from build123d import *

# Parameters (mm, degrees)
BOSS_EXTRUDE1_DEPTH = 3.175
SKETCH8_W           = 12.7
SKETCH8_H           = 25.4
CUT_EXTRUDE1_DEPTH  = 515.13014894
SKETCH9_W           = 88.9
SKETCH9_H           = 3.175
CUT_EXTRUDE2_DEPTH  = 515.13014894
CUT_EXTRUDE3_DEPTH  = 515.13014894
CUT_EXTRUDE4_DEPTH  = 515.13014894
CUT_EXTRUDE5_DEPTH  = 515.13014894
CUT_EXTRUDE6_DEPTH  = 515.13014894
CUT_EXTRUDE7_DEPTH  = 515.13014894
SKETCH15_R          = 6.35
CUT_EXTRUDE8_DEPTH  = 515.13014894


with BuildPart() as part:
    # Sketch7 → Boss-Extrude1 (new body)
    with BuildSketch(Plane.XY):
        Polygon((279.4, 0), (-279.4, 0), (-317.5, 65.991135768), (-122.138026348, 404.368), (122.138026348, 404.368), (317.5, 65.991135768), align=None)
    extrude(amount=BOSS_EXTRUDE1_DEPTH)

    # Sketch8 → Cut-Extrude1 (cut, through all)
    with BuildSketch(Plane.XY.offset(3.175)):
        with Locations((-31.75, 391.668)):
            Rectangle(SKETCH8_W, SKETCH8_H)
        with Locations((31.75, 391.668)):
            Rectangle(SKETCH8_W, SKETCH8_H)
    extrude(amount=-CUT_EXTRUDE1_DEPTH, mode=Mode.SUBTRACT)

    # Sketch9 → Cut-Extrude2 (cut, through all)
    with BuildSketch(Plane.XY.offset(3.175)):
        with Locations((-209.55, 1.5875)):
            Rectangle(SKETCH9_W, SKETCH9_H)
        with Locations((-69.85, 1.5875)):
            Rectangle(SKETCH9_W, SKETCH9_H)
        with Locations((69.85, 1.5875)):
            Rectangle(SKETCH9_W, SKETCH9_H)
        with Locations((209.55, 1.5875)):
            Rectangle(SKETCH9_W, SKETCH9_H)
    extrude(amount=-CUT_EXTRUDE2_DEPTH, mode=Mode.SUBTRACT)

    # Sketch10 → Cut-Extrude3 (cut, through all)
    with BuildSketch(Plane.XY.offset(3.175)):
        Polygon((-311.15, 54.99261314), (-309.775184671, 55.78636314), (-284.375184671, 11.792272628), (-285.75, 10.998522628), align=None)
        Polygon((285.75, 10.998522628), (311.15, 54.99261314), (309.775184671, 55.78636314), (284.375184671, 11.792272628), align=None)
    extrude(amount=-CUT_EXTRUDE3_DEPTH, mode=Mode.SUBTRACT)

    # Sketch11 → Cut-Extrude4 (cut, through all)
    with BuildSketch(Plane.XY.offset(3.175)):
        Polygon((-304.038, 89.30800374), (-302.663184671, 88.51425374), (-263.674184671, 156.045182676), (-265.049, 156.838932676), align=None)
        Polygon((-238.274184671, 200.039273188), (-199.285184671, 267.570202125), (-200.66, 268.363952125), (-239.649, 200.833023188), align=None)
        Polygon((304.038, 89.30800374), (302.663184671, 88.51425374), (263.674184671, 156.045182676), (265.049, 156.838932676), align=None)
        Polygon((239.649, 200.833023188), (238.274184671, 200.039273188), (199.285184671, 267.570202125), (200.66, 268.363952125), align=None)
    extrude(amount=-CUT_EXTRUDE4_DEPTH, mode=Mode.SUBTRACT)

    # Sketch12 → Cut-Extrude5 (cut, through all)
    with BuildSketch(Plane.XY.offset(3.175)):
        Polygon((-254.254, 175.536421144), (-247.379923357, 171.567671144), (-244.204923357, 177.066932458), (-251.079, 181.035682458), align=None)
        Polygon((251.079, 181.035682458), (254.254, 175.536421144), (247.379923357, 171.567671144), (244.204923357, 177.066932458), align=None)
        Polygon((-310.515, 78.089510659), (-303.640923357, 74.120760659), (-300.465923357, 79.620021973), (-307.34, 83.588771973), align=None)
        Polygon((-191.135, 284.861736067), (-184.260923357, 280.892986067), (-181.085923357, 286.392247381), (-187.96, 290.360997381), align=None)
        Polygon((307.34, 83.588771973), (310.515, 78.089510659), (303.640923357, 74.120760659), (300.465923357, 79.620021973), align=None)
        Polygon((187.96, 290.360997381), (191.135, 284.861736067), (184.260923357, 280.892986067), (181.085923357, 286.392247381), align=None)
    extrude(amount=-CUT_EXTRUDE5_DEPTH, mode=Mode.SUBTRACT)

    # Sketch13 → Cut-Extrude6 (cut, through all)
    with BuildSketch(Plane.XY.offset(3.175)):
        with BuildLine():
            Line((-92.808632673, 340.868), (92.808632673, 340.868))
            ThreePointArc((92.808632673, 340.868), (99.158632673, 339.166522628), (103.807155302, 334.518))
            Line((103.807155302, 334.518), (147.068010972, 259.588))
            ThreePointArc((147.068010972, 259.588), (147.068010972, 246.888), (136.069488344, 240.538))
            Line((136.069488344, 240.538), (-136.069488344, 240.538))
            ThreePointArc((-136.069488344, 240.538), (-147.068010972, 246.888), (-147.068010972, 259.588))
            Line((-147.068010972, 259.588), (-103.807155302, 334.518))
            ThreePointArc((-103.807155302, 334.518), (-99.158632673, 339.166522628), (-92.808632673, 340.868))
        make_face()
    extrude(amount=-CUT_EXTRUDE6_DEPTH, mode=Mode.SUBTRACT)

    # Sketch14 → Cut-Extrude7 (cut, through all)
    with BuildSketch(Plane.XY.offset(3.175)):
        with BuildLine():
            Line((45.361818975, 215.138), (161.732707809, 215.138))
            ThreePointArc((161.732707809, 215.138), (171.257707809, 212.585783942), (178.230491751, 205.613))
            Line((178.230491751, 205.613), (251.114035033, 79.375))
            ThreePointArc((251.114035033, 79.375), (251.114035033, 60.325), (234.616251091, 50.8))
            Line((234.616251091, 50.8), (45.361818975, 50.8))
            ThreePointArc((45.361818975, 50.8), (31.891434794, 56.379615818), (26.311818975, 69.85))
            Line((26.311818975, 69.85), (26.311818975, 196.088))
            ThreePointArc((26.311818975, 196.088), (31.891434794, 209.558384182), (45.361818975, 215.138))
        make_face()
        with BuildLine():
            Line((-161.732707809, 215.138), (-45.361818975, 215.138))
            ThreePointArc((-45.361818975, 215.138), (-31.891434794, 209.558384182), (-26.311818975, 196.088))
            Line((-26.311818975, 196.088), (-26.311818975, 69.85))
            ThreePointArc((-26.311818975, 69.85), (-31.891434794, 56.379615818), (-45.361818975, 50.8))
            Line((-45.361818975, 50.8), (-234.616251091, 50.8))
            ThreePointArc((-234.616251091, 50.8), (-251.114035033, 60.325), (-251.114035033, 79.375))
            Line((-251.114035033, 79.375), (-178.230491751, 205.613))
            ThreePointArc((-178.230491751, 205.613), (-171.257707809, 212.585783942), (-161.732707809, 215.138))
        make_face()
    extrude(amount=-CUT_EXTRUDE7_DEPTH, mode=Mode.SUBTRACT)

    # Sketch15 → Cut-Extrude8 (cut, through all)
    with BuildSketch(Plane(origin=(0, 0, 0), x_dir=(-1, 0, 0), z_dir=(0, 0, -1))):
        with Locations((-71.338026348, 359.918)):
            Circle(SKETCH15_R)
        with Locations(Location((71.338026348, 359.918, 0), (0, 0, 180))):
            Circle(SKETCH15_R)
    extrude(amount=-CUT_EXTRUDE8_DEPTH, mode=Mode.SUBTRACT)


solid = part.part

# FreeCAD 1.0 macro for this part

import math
import FreeCAD as App
import Part
import Sketcher
from FreeCAD import Vector
Q = App.Units.Quantity

doc = App.newDocument("Part")
body = doc.addObject("PartDesign::Body", "Body")

# Sketch on XY plane
sketch1 = body.newObject("Sketcher::SketchObject", "Sketch")
sketch1.AttachmentSupport = (doc.getObject("XY_Plane"), [""])
sketch1.MapMode = "FlatFace"
sketch1.addGeometry([
    Part.LineSegment(Vector(-279, 0, 0), Vector(279, 0, 0)),  # 0
    Part.LineSegment(Vector(279, 0, 0), Vector(318, 66, 0)),  # 1
    Part.LineSegment(Vector(318, 66, 0), Vector(122, 404, 0)),  # 2
    Part.LineSegment(Vector(122, 404, 0), Vector(-122, 404, 0)),  # 3
    Part.LineSegment(Vector(-122, 404, 0), Vector(-318, 66, 0)),  # 4
    Part.LineSegment(Vector(-318, 66, 0), Vector(-279, 0, 0)),  # 5
], False)
sketch1.addConstraint([
    Sketcher.Constraint("Coincident", 0, 2, 1, 1),
    Sketcher.Constraint("Coincident", 1, 2, 2, 1),
    Sketcher.Constraint("Coincident", 2, 2, 3, 1),
    Sketcher.Constraint("Coincident", 3, 2, 4, 1),
    Sketcher.Constraint("Coincident", 4, 2, 5, 1),
    Sketcher.Constraint("Coincident", 5, 2, 0, 1),
    Sketcher.Constraint("Horizontal", 0),
    Sketcher.Constraint("Horizontal", 3),
    Sketcher.Constraint("Symmetric", 0, 2, 5, 2, -1, 1),
    Sketcher.Constraint("Symmetric", 1, 2, 4, 2, -2),
    Sketcher.Constraint("Parallel", 1, 4),
    Sketcher.Constraint("Parallel", 2, 5),
    Sketcher.Constraint("DistanceX", 0, 1, 0, 2, Q("22 in")),
    Sketcher.Constraint("Distance", 1, Q("3 in")),
    Sketcher.Constraint("Angle", 1, Q("60 deg")),
    Sketcher.Constraint("DistanceY", -1, 1, 2, 2, Q("15.92 in")),
])
pad1 = body.newObject("PartDesign::Pad", "Pad")
pad1.Profile = sketch1
pad1.Length = Q("0.125 in")

# Sketch on XY plane
sketch2 = body.newObject("Sketcher::SketchObject", "Sketch001")
sketch2.AttachmentSupport = (doc.getObject("XY_Plane"), [""])
sketch2.MapMode = "FlatFace"
sketch2.AttachmentOffset = App.Placement(Vector(0, 0, 0.125 * 25.4), App.Rotation())
sketch2.addGeometry([
    Part.LineSegment(Vector(-38, 404, 0), Vector(-38, 379, 0)),  # 0
    Part.LineSegment(Vector(-38, 379, 0), Vector(-25, 379, 0)),  # 1
    Part.LineSegment(Vector(-25, 379, 0), Vector(-25, 404, 0)),  # 2
    Part.LineSegment(Vector(-25, 404, 0), Vector(-38, 404, 0)),  # 3
    Part.LineSegment(Vector(25, 404, 0), Vector(25, 379, 0)),  # 4
    Part.LineSegment(Vector(25, 379, 0), Vector(38, 379, 0)),  # 5
    Part.LineSegment(Vector(38, 379, 0), Vector(38, 404, 0)),  # 6
    Part.LineSegment(Vector(38, 404, 0), Vector(25, 404, 0)),  # 7
], False)
sketch2.addConstraint([
    Sketcher.Constraint("Coincident", 0, 2, 1, 1),
    Sketcher.Constraint("Coincident", 1, 2, 2, 1),
    Sketcher.Constraint("Coincident", 2, 2, 3, 1),
    Sketcher.Constraint("Coincident", 3, 2, 0, 1),
    Sketcher.Constraint("Coincident", 4, 2, 5, 1),
    Sketcher.Constraint("Coincident", 5, 2, 6, 1),
    Sketcher.Constraint("Coincident", 6, 2, 7, 1),
    Sketcher.Constraint("Coincident", 7, 2, 4, 1),
    Sketcher.Constraint("Vertical", 0),
    Sketcher.Constraint("Horizontal", 1),
    Sketcher.Constraint("Vertical", 2),
    Sketcher.Constraint("Horizontal", 3),
    Sketcher.Constraint("Vertical", 4),
    Sketcher.Constraint("Horizontal", 5),
    Sketcher.Constraint("Vertical", 6),
    Sketcher.Constraint("Horizontal", 7),
    Sketcher.Constraint("Symmetric", 1, 2, 4, 2, -2),
    Sketcher.Constraint("Symmetric", 3, 2, 6, 2, -2),
    Sketcher.Constraint("DistanceY", 0, 2, 0, 1, Q("1 in")),
    Sketcher.Constraint("DistanceX", 1, 1, 1, 2, Q("0.5 in")),
    Sketcher.Constraint("DistanceX", 1, 2, -1, 1, Q("1 in")),
    Sketcher.Constraint("DistanceY", -1, 1, 0, 2, Q("14.92 in")),
])
pocket1 = body.newObject("PartDesign::Pocket", "Pocket")
pocket1.Profile = sketch2
pocket1.Type = "ThroughAll"

# Sketch on XY plane
sketch3 = body.newObject("Sketcher::SketchObject", "Sketch002")
sketch3.AttachmentSupport = (doc.getObject("XY_Plane"), [""])
sketch3.MapMode = "FlatFace"
sketch3.AttachmentOffset = App.Placement(Vector(0, 0, 0.125 * 25.4), App.Rotation())
sketch3.addGeometry([
    Part.LineSegment(Vector(-254, 3.2, 0), Vector(-254, 0, 0)),  # 0
    Part.LineSegment(Vector(-254, 0, 0), Vector(-165.1, 0, 0)),  # 1
    Part.LineSegment(Vector(-165.1, 0, 0), Vector(-165.1, 3.2, 0)),  # 2
    Part.LineSegment(Vector(-165.1, 3.2, 0), Vector(-254, 3.2, 0)),  # 3
    Part.LineSegment(Vector(-114.3, 3.2, 0), Vector(-114.3, 0, 0)),  # 4
    Part.LineSegment(Vector(-114.3, 0, 0), Vector(-25.4, 0, 0)),  # 5
    Part.LineSegment(Vector(-25.4, 0, 0), Vector(-25.4, 3.2, 0)),  # 6
    Part.LineSegment(Vector(-25.4, 3.2, 0), Vector(-114.3, 3.2, 0)),  # 7
    Part.LineSegment(Vector(25.4, 3.2, 0), Vector(25.4, 0, 0)),  # 8
    Part.LineSegment(Vector(25.4, 0, 0), Vector(114.3, 0, 0)),  # 9
    Part.LineSegment(Vector(114.3, 0, 0), Vector(114.3, 3.2, 0)),  # 10
    Part.LineSegment(Vector(114.3, 3.2, 0), Vector(25.4, 3.2, 0)),  # 11
    Part.LineSegment(Vector(165.1, 3.2, 0), Vector(165.1, 0, 0)),  # 12
    Part.LineSegment(Vector(165.1, 0, 0), Vector(254, 0, 0)),  # 13
    Part.LineSegment(Vector(254, 0, 0), Vector(254, 3.2, 0)),  # 14
    Part.LineSegment(Vector(254, 3.2, 0), Vector(165.1, 3.2, 0)),  # 15
], False)
sketch3.addConstraint([
    Sketcher.Constraint("Coincident", 0, 2, 1, 1),
    Sketcher.Constraint("Coincident", 1, 2, 2, 1),
    Sketcher.Constraint("Coincident", 2, 2, 3, 1),
    Sketcher.Constraint("Coincident", 3, 2, 0, 1),
    Sketcher.Constraint("Coincident", 4, 2, 5, 1),
    Sketcher.Constraint("Coincident", 5, 2, 6, 1),
    Sketcher.Constraint("Coincident", 6, 2, 7, 1),
    Sketcher.Constraint("Coincident", 7, 2, 4, 1),
    Sketcher.Constraint("Coincident", 8, 2, 9, 1),
    Sketcher.Constraint("Coincident", 9, 2, 10, 1),
    Sketcher.Constraint("Coincident", 10, 2, 11, 1),
    Sketcher.Constraint("Coincident", 11, 2, 8, 1),
    Sketcher.Constraint("Coincident", 12, 2, 13, 1),
    Sketcher.Constraint("Coincident", 13, 2, 14, 1),
    Sketcher.Constraint("Coincident", 14, 2, 15, 1),
    Sketcher.Constraint("Coincident", 15, 2, 12, 1),
    Sketcher.Constraint("Vertical", 0),
    Sketcher.Constraint("Horizontal", 1),
    Sketcher.Constraint("Vertical", 2),
    Sketcher.Constraint("Horizontal", 3),
    Sketcher.Constraint("Vertical", 4),
    Sketcher.Constraint("Horizontal", 5),
    Sketcher.Constraint("Vertical", 6),
    Sketcher.Constraint("Horizontal", 7),
    Sketcher.Constraint("Vertical", 8),
    Sketcher.Constraint("Horizontal", 9),
    Sketcher.Constraint("Vertical", 10),
    Sketcher.Constraint("Horizontal", 11),
    Sketcher.Constraint("Vertical", 12),
    Sketcher.Constraint("Horizontal", 13),
    Sketcher.Constraint("Vertical", 14),
    Sketcher.Constraint("Horizontal", 15),
    Sketcher.Constraint("Symmetric", 5, 2, 8, 2, -1, 1),
    Sketcher.Constraint("Symmetric", 1, 2, 12, 2, -1, 1),
    Sketcher.Constraint("Symmetric", 4, 2, 9, 2, -2),
    Sketcher.Constraint("Symmetric", 0, 2, 13, 2, -2),
    Sketcher.Constraint("Horizontal", 3, 2, 6, 2),
    Sketcher.Constraint("Horizontal", 7, 2, 10, 2),
    Sketcher.Constraint("Horizontal", 11, 2, 14, 2),
    Sketcher.Constraint("Equal", 3, 5),
    Sketcher.Constraint("DistanceX", 1, 1, 1, 2, Q("3.5 in")),
    Sketcher.Constraint("DistanceX", 0, 2, -1, 1, Q("10 in")),
    Sketcher.Constraint("DistanceX", 5, 2, -1, 1, Q("1 in")),
    Sketcher.Constraint("DistanceY", 0, 2, 0, 1, Q("0.125 in")),
])
pocket2 = body.newObject("PartDesign::Pocket", "Pocket001")
pocket2.Profile = sketch3
pocket2.Type = "ThroughAll"

# Sketch on XY plane
sketch4 = body.newObject("Sketcher::SketchObject", "Sketch003")
sketch4.AttachmentSupport = (doc.getObject("XY_Plane"), [""])
sketch4.MapMode = "FlatFace"
sketch4.AttachmentOffset = App.Placement(Vector(0, 0, 0.125 * 25.4), App.Rotation())
sketch4.addGeometry([
    Part.LineSegment(Vector(-309.8, 55.8, 0), Vector(-311.1, 55, 0)),  # 0
    Part.LineSegment(Vector(-311.1, 55, 0), Vector(-285.8, 11, 0)),  # 1
    Part.LineSegment(Vector(-285.8, 11, 0), Vector(-284.4, 11.8, 0)),  # 2
    Part.LineSegment(Vector(-284.4, 11.8, 0), Vector(-309.8, 55.8, 0)),  # 3
    Part.LineSegment(Vector(285.8, 11, 0), Vector(311.1, 55, 0)),  # 4
    Part.LineSegment(Vector(311.1, 55, 0), Vector(309.8, 55.8, 0)),  # 5
    Part.LineSegment(Vector(309.8, 55.8, 0), Vector(284.4, 11.8, 0)),  # 6
    Part.LineSegment(Vector(284.4, 11.8, 0), Vector(285.8, 11, 0)),  # 7
], False)
sketch4.addConstraint([
    Sketcher.Constraint("Coincident", 0, 2, 1, 1),
    Sketcher.Constraint("Coincident", 1, 2, 2, 1),
    Sketcher.Constraint("Coincident", 2, 2, 3, 1),
    Sketcher.Constraint("Coincident", 3, 2, 0, 1),
    Sketcher.Constraint("Coincident", 4, 2, 5, 1),
    Sketcher.Constraint("Coincident", 5, 2, 6, 1),
    Sketcher.Constraint("Coincident", 6, 2, 7, 1),
    Sketcher.Constraint("Coincident", 7, 2, 4, 1),
    Sketcher.Constraint("Symmetric", 0, 2, 4, 2, -2),
    Sketcher.Constraint("Symmetric", 3, 2, 5, 2, -2),
    Sketcher.Constraint("Symmetric", 2, 2, 6, 2, -2),
    Sketcher.Constraint("Symmetric", 1, 2, 7, 2, -2),
    Sketcher.Constraint("Perpendicular", 0, 1),
    Sketcher.Constraint("Perpendicular", 1, 2),
    Sketcher.Constraint("Perpendicular", 2, 3),
    Sketcher.Constraint("Distance", 1, Q("2 in")),
    Sketcher.Constraint("Angle", 0, Q("-150 deg")),
    Sketcher.Constraint("DistanceX", 1, 2, 4, 2, Q("23.5 in")),
    Sketcher.Constraint("Distance", 0, Q("0.0625 in")),
    Sketcher.Constraint("DistanceY", -1, 1, 0, 2, 54.992613),
])
pocket3 = body.newObject("PartDesign::Pocket", "Pocket002")
pocket3.Profile = sketch4
pocket3.Type = "ThroughAll"

# Sketch on XY plane
sketch5 = body.newObject("Sketcher::SketchObject", "Sketch004")
sketch5.AttachmentSupport = (doc.getObject("XY_Plane"), [""])
sketch5.MapMode = "FlatFace"
sketch5.AttachmentOffset = App.Placement(Vector(0, 0, 0.125 * 25.4), App.Rotation())
sketch5.addGeometry([
    Part.LineSegment(Vector(-304, 89.3, 0), Vector(-302.7, 88.5, 0)),  # 0
    Part.LineSegment(Vector(-302.7, 88.5, 0), Vector(-263.7, 156, 0)),  # 1
    Part.LineSegment(Vector(-263.7, 156, 0), Vector(-265, 156.8, 0)),  # 2
    Part.LineSegment(Vector(-265, 156.8, 0), Vector(-304, 89.3, 0)),  # 3
    Part.LineSegment(Vector(-238.3, 200, 0), Vector(-199.3, 267.6, 0)),  # 4
    Part.LineSegment(Vector(-199.3, 267.6, 0), Vector(-200.7, 268.4, 0)),  # 5
    Part.LineSegment(Vector(-200.7, 268.4, 0), Vector(-239.6, 200.8, 0)),  # 6
    Part.LineSegment(Vector(-239.6, 200.8, 0), Vector(-238.3, 200, 0)),  # 7
    Part.LineSegment(Vector(302.7, 88.5, 0), Vector(304, 89.3, 0)),  # 8
    Part.LineSegment(Vector(304, 89.3, 0), Vector(265, 156.8, 0)),  # 9
    Part.LineSegment(Vector(265, 156.8, 0), Vector(263.7, 156, 0)),  # 10
    Part.LineSegment(Vector(263.7, 156, 0), Vector(302.7, 88.5, 0)),  # 11
    Part.LineSegment(Vector(238.3, 200, 0), Vector(239.6, 200.8, 0)),  # 12
    Part.LineSegment(Vector(239.6, 200.8, 0), Vector(200.7, 268.4, 0)),  # 13
    Part.LineSegment(Vector(200.7, 268.4, 0), Vector(199.3, 267.6, 0)),  # 14
    Part.LineSegment(Vector(199.3, 267.6, 0), Vector(238.3, 200, 0)),  # 15
], False)
sketch5.addConstraint([
    Sketcher.Constraint("Coincident", 0, 2, 1, 1),
    Sketcher.Constraint("Coincident", 1, 2, 2, 1),
    Sketcher.Constraint("Coincident", 2, 2, 3, 1),
    Sketcher.Constraint("Coincident", 3, 2, 0, 1),
    Sketcher.Constraint("Coincident", 4, 2, 5, 1),
    Sketcher.Constraint("Coincident", 5, 2, 6, 1),
    Sketcher.Constraint("Coincident", 6, 2, 7, 1),
    Sketcher.Constraint("Coincident", 7, 2, 4, 1),
    Sketcher.Constraint("Coincident", 8, 2, 9, 1),
    Sketcher.Constraint("Coincident", 9, 2, 10, 1),
    Sketcher.Constraint("Coincident", 10, 2, 11, 1),
    Sketcher.Constraint("Coincident", 11, 2, 8, 1),
    Sketcher.Constraint("Coincident", 12, 2, 13, 1),
    Sketcher.Constraint("Coincident", 13, 2, 14, 1),
    Sketcher.Constraint("Coincident", 14, 2, 15, 1),
    Sketcher.Constraint("Coincident", 15, 2, 12, 1),
    Sketcher.Constraint("Symmetric", 3, 2, 8, 2, -2),
    Sketcher.Constraint("Symmetric", 2, 2, 9, 2, -2),
    Sketcher.Constraint("Symmetric", 1, 2, 10, 2, -2),
    Sketcher.Constraint("Symmetric", 0, 2, 11, 2, -2),
    Sketcher.Constraint("Symmetric", 6, 2, 12, 2, -2),
    Sketcher.Constraint("Symmetric", 5, 2, 13, 2, -2),
    Sketcher.Constraint("Symmetric", 4, 2, 14, 2, -2),
    Sketcher.Constraint("Symmetric", 7, 2, 15, 2, -2),
    Sketcher.Constraint("Perpendicular", 0, 1),
    Sketcher.Constraint("Perpendicular", 1, 2),
    Sketcher.Constraint("Perpendicular", 2, 3),
    Sketcher.Constraint("Parallel", 3, 4),
    Sketcher.Constraint("Perpendicular", 4, 5),
    Sketcher.Constraint("Perpendicular", 5, 6),
    Sketcher.Constraint("Perpendicular", 6, 7),
    Sketcher.Constraint("Equal", 3, 4),
    Sketcher.Constraint("Equal", 2, 5),
    Sketcher.Constraint("Angle", 0, Q("-30 deg")),
    Sketcher.Constraint("DistanceX", 2, 2, 6, 2, Q("1 in")),
    Sketcher.Constraint("DistanceX", 5, 2, -1, 1, Q("7.9 in")),
    Sketcher.Constraint("Distance", 1, Q("3.07 in")),
    Sketcher.Constraint("Distance", 0, Q("0.0625 in")),
    Sketcher.Constraint("DistanceY", 3, 2, 4, 2, 178.262198),
    Sketcher.Constraint("DistanceY", -1, 1, 0, 2, 88.514254),
])
pocket4 = body.newObject("PartDesign::Pocket", "Pocket003")
pocket4.Profile = sketch5
pocket4.Type = "ThroughAll"

# Sketch on XY plane
sketch6 = body.newObject("Sketcher::SketchObject", "Sketch005")
sketch6.AttachmentSupport = (doc.getObject("XY_Plane"), [""])
sketch6.MapMode = "FlatFace"
sketch6.AttachmentOffset = App.Placement(Vector(0, 0, 0.125 * 25.4), App.Rotation())
sketch6.addGeometry([
    Part.LineSegment(Vector(-254, 176, 0), Vector(-247, 172, 0)),  # 0
    Part.LineSegment(Vector(-247, 172, 0), Vector(-244, 177, 0)),  # 1
    Part.LineSegment(Vector(-244, 177, 0), Vector(-251, 181, 0)),  # 2
    Part.LineSegment(Vector(-251, 181, 0), Vector(-254, 176, 0)),  # 3
    Part.LineSegment(Vector(254, 176, 0), Vector(251, 181, 0)),  # 4
    Part.LineSegment(Vector(251, 181, 0), Vector(244, 177, 0)),  # 5
    Part.LineSegment(Vector(244, 177, 0), Vector(247, 172, 0)),  # 6
    Part.LineSegment(Vector(247, 172, 0), Vector(254, 176, 0)),  # 7
    Part.LineSegment(Vector(-311, 78, 0), Vector(-304, 74, 0)),  # 8
    Part.LineSegment(Vector(-304, 74, 0), Vector(-300, 80, 0)),  # 9
    Part.LineSegment(Vector(-300, 80, 0), Vector(-307, 84, 0)),  # 10
    Part.LineSegment(Vector(-307, 84, 0), Vector(-311, 78, 0)),  # 11
    Part.LineSegment(Vector(-191, 285, 0), Vector(-184, 281, 0)),  # 12
    Part.LineSegment(Vector(-184, 281, 0), Vector(-181, 286, 0)),  # 13
    Part.LineSegment(Vector(-181, 286, 0), Vector(-188, 290, 0)),  # 14
    Part.LineSegment(Vector(-188, 290, 0), Vector(-191, 285, 0)),  # 15
    Part.LineSegment(Vector(311, 78, 0), Vector(307, 84, 0)),  # 16
    Part.LineSegment(Vector(307, 84, 0), Vector(300, 80, 0)),  # 17
    Part.LineSegment(Vector(300, 80, 0), Vector(304, 74, 0)),  # 18
    Part.LineSegment(Vector(304, 74, 0), Vector(311, 78, 0)),  # 19
    Part.LineSegment(Vector(191, 285, 0), Vector(188, 290, 0)),  # 20
    Part.LineSegment(Vector(188, 290, 0), Vector(181, 286, 0)),  # 21
    Part.LineSegment(Vector(181, 286, 0), Vector(184, 281, 0)),  # 22
    Part.LineSegment(Vector(184, 281, 0), Vector(191, 285, 0)),  # 23
], False)
sketch6.addConstraint([
    Sketcher.Constraint("Coincident", 0, 2, 1, 1),
    Sketcher.Constraint("Coincident", 1, 2, 2, 1),
    Sketcher.Constraint("Coincident", 2, 2, 3, 1),
    Sketcher.Constraint("Coincident", 3, 2, 0, 1),
    Sketcher.Constraint("Coincident", 4, 2, 5, 1),
    Sketcher.Constraint("Coincident", 5, 2, 6, 1),
    Sketcher.Constraint("Coincident", 6, 2, 7, 1),
    Sketcher.Constraint("Coincident", 7, 2, 4, 1),
    Sketcher.Constraint("Coincident", 8, 2, 9, 1),
    Sketcher.Constraint("Coincident", 9, 2, 10, 1),
    Sketcher.Constraint("Coincident", 10, 2, 11, 1),
    Sketcher.Constraint("Coincident", 11, 2, 8, 1),
    Sketcher.Constraint("Coincident", 12, 2, 13, 1),
    Sketcher.Constraint("Coincident", 13, 2, 14, 1),
    Sketcher.Constraint("Coincident", 14, 2, 15, 1),
    Sketcher.Constraint("Coincident", 15, 2, 12, 1),
    Sketcher.Constraint("Coincident", 16, 2, 17, 1),
    Sketcher.Constraint("Coincident", 17, 2, 18, 1),
    Sketcher.Constraint("Coincident", 18, 2, 19, 1),
    Sketcher.Constraint("Coincident", 19, 2, 16, 1),
    Sketcher.Constraint("Coincident", 20, 2, 21, 1),
    Sketcher.Constraint("Coincident", 21, 2, 22, 1),
    Sketcher.Constraint("Coincident", 22, 2, 23, 1),
    Sketcher.Constraint("Coincident", 23, 2, 20, 1),
    Sketcher.Constraint("Symmetric", 2, 2, 4, 2, -2),
    Sketcher.Constraint("Symmetric", 1, 2, 5, 2, -2),
    Sketcher.Constraint("Symmetric", 0, 2, 6, 2, -2),
    Sketcher.Constraint("Symmetric", 3, 2, 7, 2, -2),
    Sketcher.Constraint("Symmetric", 10, 2, 16, 2, -2),
    Sketcher.Constraint("Symmetric", 9, 2, 17, 2, -2),
    Sketcher.Constraint("Symmetric", 8, 2, 18, 2, -2),
    Sketcher.Constraint("Symmetric", 11, 2, 19, 2, -2),
    Sketcher.Constraint("Symmetric", 14, 2, 20, 2, -2),
    Sketcher.Constraint("Symmetric", 13, 2, 21, 2, -2),
    Sketcher.Constraint("Symmetric", 12, 2, 22, 2, -2),
    Sketcher.Constraint("Symmetric", 15, 2, 23, 2, -2),
    Sketcher.Constraint("Perpendicular", 0, 1),
    Sketcher.Constraint("Perpendicular", 1, 2),
    Sketcher.Constraint("Perpendicular", 2, 3),
    Sketcher.Constraint("Perpendicular", 3, 8),
    Sketcher.Constraint("Perpendicular", 8, 9),
    Sketcher.Constraint("Perpendicular", 9, 10),
    Sketcher.Constraint("Perpendicular", 10, 11),
    Sketcher.Constraint("Perpendicular", 11, 12),
    Sketcher.Constraint("Perpendicular", 12, 13),
    Sketcher.Constraint("Perpendicular", 13, 14),
    Sketcher.Constraint("Perpendicular", 14, 15),
    Sketcher.Constraint("Equal", 7, 8),
    Sketcher.Constraint("Equal", 6, 9),
    Sketcher.Constraint("Equal", 10, 12),
    Sketcher.Constraint("Equal", 11, 13),
    Sketcher.Constraint("Angle", 0, Q("-30 deg")),
    Sketcher.Constraint("DistanceX", 10, 2, -1, 1, Q("12.1 in")),
    Sketcher.Constraint("DistanceX", 14, 2, -1, 1, Q("7.4 in")),
    Sketcher.Constraint("Distance", 1, Q("0.25 in")),
    Sketcher.Constraint("DistanceX", 3, 2, -1, 1, Q("10.01 in")),
    Sketcher.Constraint("Distance", 0, Q("0.3125 in")),
    Sketcher.Constraint("DistanceY", 9, 2, 3, 2, 95.916399),
    Sketcher.Constraint("DistanceY", -1, 1, 0, 2, 171.567671),
    Sketcher.Constraint("DistanceY", -1, 1, 12, 2, 280.892986),
])
pocket5 = body.newObject("PartDesign::Pocket", "Pocket004")
pocket5.Profile = sketch6
pocket5.Type = "ThroughAll"

# Sketch on XY plane
sketch7 = body.newObject("Sketcher::SketchObject", "Sketch006")
sketch7.AttachmentSupport = (doc.getObject("XY_Plane"), [""])
sketch7.MapMode = "FlatFace"
sketch7.AttachmentOffset = App.Placement(Vector(0, 0, 0.125 * 25.4), App.Rotation())
sketch7.addGeometry([
    Part.LineSegment(Vector(93, 341, 0), Vector(-93, 341, 0)),  # 0
    Part.ArcOfCircle(Part.Circle(Vector(-93, 328, 0), Vector(0, 0, 1), 13), math.radians(90), math.radians(150)),  # 1
    Part.LineSegment(Vector(-104, 335, 0), Vector(-147, 260, 0)),  # 2
    Part.ArcOfCircle(Part.Circle(Vector(-136, 253, 0), Vector(0, 0, 1), 13), math.radians(150), math.radians(270)),  # 3
    Part.LineSegment(Vector(-136, 241, 0), Vector(136, 241, 0)),  # 4
    Part.ArcOfCircle(Part.Circle(Vector(136, 253, 0), Vector(0, 0, 1), 13), math.radians(-90), math.radians(30)),  # 5
    Part.LineSegment(Vector(147, 260, 0), Vector(104, 335, 0)),  # 6
    Part.ArcOfCircle(Part.Circle(Vector(93, 328, 0), Vector(0, 0, 1), 13), math.radians(30), math.radians(90)),  # 7
], False)
sketch7.addConstraint([
    Sketcher.Constraint("Tangent", 0, 2, 1, 1),
    Sketcher.Constraint("Tangent", 1, 2, 2, 1),
    Sketcher.Constraint("Tangent", 2, 2, 3, 1),
    Sketcher.Constraint("Tangent", 3, 2, 4, 1),
    Sketcher.Constraint("Tangent", 4, 2, 5, 1),
    Sketcher.Constraint("Tangent", 5, 2, 6, 1),
    Sketcher.Constraint("Tangent", 6, 2, 7, 1),
    Sketcher.Constraint("Tangent", 7, 2, 0, 1),
    Sketcher.Constraint("Horizontal", 0),
    Sketcher.Constraint("Horizontal", 4),
    Sketcher.Constraint("Equal", 1, 3),
    Sketcher.Constraint("Equal", 3, 5),
    Sketcher.Constraint("Equal", 5, 7),
    Sketcher.Constraint("Symmetric", 2, 2, 5, 2, -2),
    Sketcher.Constraint("Radius", 1, Q("0.5 in")),
    Sketcher.Constraint("Angle", 2, Q("-120 deg")),
    Sketcher.Constraint("DistanceY", 3, 3, 1, 2, Q("3.2 in")),
    Sketcher.Constraint("DistanceY", -1, 1, 1, 3, Q("12.92 in")),
    Sketcher.Constraint("DistanceX", 0, 2, 0, 1, 185.617265),
])
pocket6 = body.newObject("PartDesign::Pocket", "Pocket005")
pocket6.Profile = sketch7
pocket6.Type = "ThroughAll"

# Sketch on XY plane
sketch8 = body.newObject("Sketcher::SketchObject", "Sketch007")
sketch8.AttachmentSupport = (doc.getObject("XY_Plane"), [""])
sketch8.MapMode = "FlatFace"
sketch8.AttachmentOffset = App.Placement(Vector(0, 0, 0.125 * 25.4), App.Rotation())
sketch8.addGeometry([
    Part.LineSegment(Vector(162, 215, 0), Vector(45, 215, 0)),  # 0
    Part.ArcOfCircle(Part.Circle(Vector(45, 196, 0), Vector(0, 0, 1), 19), math.radians(90), math.radians(180)),  # 1
    Part.LineSegment(Vector(26, 196, 0), Vector(26, 70, 0)),  # 2
    Part.ArcOfCircle(Part.Circle(Vector(45, 70, 0), Vector(0, 0, 1), 19), math.radians(180), math.radians(270)),  # 3
    Part.LineSegment(Vector(45, 51, 0), Vector(235, 51, 0)),  # 4
    Part.ArcOfCircle(Part.Circle(Vector(235, 70, 0), Vector(0, 0, 1), 19), math.radians(-90), math.radians(30)),  # 5
    Part.LineSegment(Vector(251, 79, 0), Vector(178, 206, 0)),  # 6
    Part.ArcOfCircle(Part.Circle(Vector(162, 196, 0), Vector(0, 0, 1), 19), math.radians(30), math.radians(90)),  # 7
    Part.LineSegment(Vector(-45, 215, 0), Vector(-162, 215, 0)),  # 8
    Part.ArcOfCircle(Part.Circle(Vector(-162, 196, 0), Vector(0, 0, 1), 19), math.radians(90), math.radians(150)),  # 9
    Part.LineSegment(Vector(-178, 206, 0), Vector(-251, 79, 0)),  # 10
    Part.ArcOfCircle(Part.Circle(Vector(-235, 70, 0), Vector(0, 0, 1), 19), math.radians(150), math.radians(270)),  # 11
    Part.LineSegment(Vector(-235, 51, 0), Vector(-45, 51, 0)),  # 12
    Part.ArcOfCircle(Part.Circle(Vector(-45, 70, 0), Vector(0, 0, 1), 19), math.radians(-90), math.radians(0)),  # 13
    Part.LineSegment(Vector(-26, 70, 0), Vector(-26, 196, 0)),  # 14
    Part.ArcOfCircle(Part.Circle(Vector(-45, 196, 0), Vector(0, 0, 1), 19), math.radians(0), math.radians(90)),  # 15
], False)
sketch8.addConstraint([
    Sketcher.Constraint("Tangent", 0, 2, 1, 1),
    Sketcher.Constraint("Tangent", 1, 2, 2, 1),
    Sketcher.Constraint("Tangent", 2, 2, 3, 1),
    Sketcher.Constraint("Tangent", 3, 2, 4, 1),
    Sketcher.Constraint("Tangent", 4, 2, 5, 1),
    Sketcher.Constraint("Tangent", 5, 2, 6, 1),
    Sketcher.Constraint("Tangent", 6, 2, 7, 1),
    Sketcher.Constraint("Tangent", 7, 2, 0, 1),
    Sketcher.Constraint("Tangent", 8, 2, 9, 1),
    Sketcher.Constraint("Tangent", 9, 2, 10, 1),
    Sketcher.Constraint("Tangent", 10, 2, 11, 1),
    Sketcher.Constraint("Tangent", 11, 2, 12, 1),
    Sketcher.Constraint("Tangent", 12, 2, 13, 1),
    Sketcher.Constraint("Tangent", 13, 2, 14, 1),
    Sketcher.Constraint("Tangent", 14, 2, 15, 1),
    Sketcher.Constraint("Tangent", 15, 2, 8, 1),
    Sketcher.Constraint("Horizontal", 0),
    Sketcher.Constraint("Vertical", 2),
    Sketcher.Constraint("Horizontal", 4),
    Sketcher.Constraint("Horizontal", 8),
    Sketcher.Constraint("Horizontal", 12),
    Sketcher.Constraint("Vertical", 14),
    Sketcher.Constraint("Equal", 1, 3),
    Sketcher.Constraint("Equal", 3, 5),
    Sketcher.Constraint("Equal", 5, 7),
    Sketcher.Constraint("Equal", 7, 9),
    Sketcher.Constraint("Equal", 9, 11),
    Sketcher.Constraint("Equal", 11, 13),
    Sketcher.Constraint("Equal", 13, 15),
    Sketcher.Constraint("Symmetric", 7, 3, 9, 3, -2),
    Sketcher.Constraint("Symmetric", 5, 3, 11, 3, -2),
    Sketcher.Constraint("Equal", 0, 8),
    Sketcher.Constraint("Radius", 1, Q("0.75 in")),
    Sketcher.Constraint("DistanceY", -1, 1, 3, 2, Q("2 in")),
    Sketcher.Constraint("Angle", 6, Q("120 deg")),
    Sketcher.Constraint("DistanceY", 2, 2, 2, 1, Q("4.97 in")),
    Sketcher.Constraint("DistanceX", 0, 2, 0, 1, 116.370889),
    Sketcher.Constraint("DistanceX", -1, 1, 1, 3, 45.361819),
])
pocket7 = body.newObject("PartDesign::Pocket", "Pocket006")
pocket7.Profile = sketch8
pocket7.Type = "ThroughAll"

# Sketch on XY plane
sketch9 = body.newObject("Sketcher::SketchObject", "Sketch008")
sketch9.AttachmentSupport = (doc.getObject("XY_Plane"), [""])
sketch9.MapMode = "FlatFace"
sketch9.addGeometry([
    Part.Circle(Vector(71, 360, 0), Vector(0, 0, 1), 6),
    Part.Circle(Vector(-71, 360, 0), Vector(0, 0, 1), 6),
], False)
sketch9.addConstraint([
    Sketcher.Constraint("Equal", 0, 1),
    Sketcher.Constraint("Symmetric", 0, 3, 1, 3, -2),
    Sketcher.Constraint("Diameter", 0, Q("0.5 in")),
    Sketcher.Constraint("DistanceY", -1, 1, 0, 3, Q("14.17 in")),
    Sketcher.Constraint("DistanceX", -1, 1, 0, 3, 71.338026),
])
pocket8 = body.newObject("PartDesign::Pocket", "Pocket007")
pocket8.Profile = sketch9
pocket8.Type = "ThroughAll"
pocket8.Reversed = True

doc.recompute()
